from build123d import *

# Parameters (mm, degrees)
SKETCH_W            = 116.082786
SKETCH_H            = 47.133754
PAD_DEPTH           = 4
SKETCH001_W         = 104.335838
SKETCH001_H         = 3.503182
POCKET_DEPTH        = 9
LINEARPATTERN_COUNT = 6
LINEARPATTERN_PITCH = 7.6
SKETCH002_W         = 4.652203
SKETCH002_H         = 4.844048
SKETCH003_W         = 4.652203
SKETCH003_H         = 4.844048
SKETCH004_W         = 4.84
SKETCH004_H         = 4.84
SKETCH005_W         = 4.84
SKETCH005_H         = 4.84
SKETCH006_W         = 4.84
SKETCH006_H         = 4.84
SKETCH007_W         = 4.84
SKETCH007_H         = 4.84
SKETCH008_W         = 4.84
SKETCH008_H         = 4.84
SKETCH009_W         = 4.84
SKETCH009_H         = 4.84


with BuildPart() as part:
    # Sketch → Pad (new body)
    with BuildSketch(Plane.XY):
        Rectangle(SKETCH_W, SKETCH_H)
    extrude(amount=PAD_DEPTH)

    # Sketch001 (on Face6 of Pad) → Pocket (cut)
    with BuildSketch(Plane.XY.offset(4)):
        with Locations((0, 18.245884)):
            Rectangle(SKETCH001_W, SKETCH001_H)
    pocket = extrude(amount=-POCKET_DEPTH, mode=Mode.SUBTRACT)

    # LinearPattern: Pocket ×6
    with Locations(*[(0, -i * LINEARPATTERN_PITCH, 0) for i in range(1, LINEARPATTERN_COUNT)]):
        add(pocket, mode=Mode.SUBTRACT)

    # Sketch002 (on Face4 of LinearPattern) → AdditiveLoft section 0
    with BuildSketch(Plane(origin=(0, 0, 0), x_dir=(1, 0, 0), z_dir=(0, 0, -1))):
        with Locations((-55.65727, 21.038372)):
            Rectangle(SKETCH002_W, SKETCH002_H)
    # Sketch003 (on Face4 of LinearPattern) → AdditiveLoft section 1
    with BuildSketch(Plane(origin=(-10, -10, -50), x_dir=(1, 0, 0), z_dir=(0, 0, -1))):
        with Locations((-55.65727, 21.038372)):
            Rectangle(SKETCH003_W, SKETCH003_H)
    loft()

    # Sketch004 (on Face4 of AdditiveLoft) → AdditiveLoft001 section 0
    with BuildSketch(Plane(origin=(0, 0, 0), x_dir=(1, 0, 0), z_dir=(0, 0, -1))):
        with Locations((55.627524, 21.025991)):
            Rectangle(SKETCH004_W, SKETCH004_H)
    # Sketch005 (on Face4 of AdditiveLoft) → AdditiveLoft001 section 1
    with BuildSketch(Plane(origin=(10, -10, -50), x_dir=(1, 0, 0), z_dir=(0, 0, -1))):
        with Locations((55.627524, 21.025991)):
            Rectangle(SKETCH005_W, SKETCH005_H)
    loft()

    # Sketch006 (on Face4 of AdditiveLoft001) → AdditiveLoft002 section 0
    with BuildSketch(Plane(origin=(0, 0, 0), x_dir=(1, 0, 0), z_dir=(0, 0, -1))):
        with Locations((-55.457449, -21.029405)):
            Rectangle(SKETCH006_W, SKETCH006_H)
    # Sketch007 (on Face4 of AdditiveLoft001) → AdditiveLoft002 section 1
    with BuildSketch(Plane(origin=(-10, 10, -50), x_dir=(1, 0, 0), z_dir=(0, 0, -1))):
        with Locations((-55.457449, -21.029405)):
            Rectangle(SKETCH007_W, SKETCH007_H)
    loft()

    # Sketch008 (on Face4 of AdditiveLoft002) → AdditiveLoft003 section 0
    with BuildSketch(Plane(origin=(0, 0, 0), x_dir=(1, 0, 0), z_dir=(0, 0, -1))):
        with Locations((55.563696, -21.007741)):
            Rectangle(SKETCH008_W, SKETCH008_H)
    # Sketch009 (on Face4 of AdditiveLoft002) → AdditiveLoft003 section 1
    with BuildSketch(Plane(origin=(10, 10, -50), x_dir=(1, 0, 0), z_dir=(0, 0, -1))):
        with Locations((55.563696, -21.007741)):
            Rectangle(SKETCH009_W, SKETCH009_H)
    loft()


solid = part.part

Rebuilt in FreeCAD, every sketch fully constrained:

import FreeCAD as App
import Part
import Sketcher

V = App.Vector

doc = App.newDocument("Part")
body = doc.addObject("PartDesign::Body", "Body")

sketch1 = body.newObject("Sketcher::SketchObject", "Sketch")
sketch1.AttachmentSupport = (doc.getObject("XY_Plane"), [""])
sketch1.MapMode = "FlatFace"
sketch1.addGeometry([
    Part.LineSegment(V(-58, 24, 0), V(-58, -24, 0)),
    Part.LineSegment(V(-58, -24, 0), V(58, -24, 0)),
    Part.LineSegment(V(58, -24, 0), V(58, 24, 0)),
    Part.LineSegment(V(58, 24, 0), V(-58, 24, 0)),
], False)
sketch1.addConstraint([
    Sketcher.Constraint("Coincident", 0, 2, 1, 1),
    Sketcher.Constraint("Coincident", 1, 2, 2, 1),
    Sketcher.Constraint("Coincident", 2, 2, 3, 1),
    Sketcher.Constraint("Coincident", 3, 2, 0, 1),
    Sketcher.Constraint("Vertical", 0),
    Sketcher.Constraint("Horizontal", 1),
    Sketcher.Constraint("Vertical", 2),
    Sketcher.Constraint("Horizontal", 3),
    Sketcher.Constraint("Symmetric", 0, 2, 2, 2, -1, 1),
    Sketcher.Constraint("DistanceX", 1, 1, 1, 2, 116.082786),
    Sketcher.Constraint("DistanceY", 0, 2, 0, 1, 47.133754),
])
pad1 = body.newObject("PartDesign::Pad", "Pad")
pad1.Profile = sketch1
pad1.Length = 4

sketch2 = body.newObject("Sketcher::SketchObject", "Sketch001")
sketch2.AttachmentSupport = (doc.getObject("XY_Plane"), [""])
sketch2.MapMode = "FlatFace"
sketch2.AttachmentOffset = App.Placement(V(0, 0, 4), App.Rotation())
sketch2.addGeometry([
    Part.LineSegment(V(-52.2, 20, 0), V(-52.2, 16.5, 0)),
    Part.LineSegment(V(-52.2, 16.5, 0), V(52.2, 16.5, 0)),
    Part.LineSegment(V(52.2, 16.5, 0), V(52.2, 20, 0)),
    Part.LineSegment(V(52.2, 20, 0), V(-52.2, 20, 0)),
], False)
sketch2.addConstraint([
    Sketcher.Constraint("Coincident", 0, 2, 1, 1),
    Sketcher.Constraint("Coincident", 1, 2, 2, 1),
    Sketcher.Constraint("Coincident", 2, 2, 3, 1),
    Sketcher.Constraint("Coincident", 3, 2, 0, 1),
    Sketcher.Constraint("Vertical", 0),
    Sketcher.Constraint("Horizontal", 1),
    Sketcher.Constraint("Vertical", 2),
    Sketcher.Constraint("Horizontal", 3),
    Sketcher.Constraint("DistanceX", 1, 1, 1, 2, 104.335838),
    Sketcher.Constraint("DistanceY", 0, 2, 0, 1, 3.503182),
    Sketcher.Constraint("DistanceX", 0, 2, -1, 1, 52.167919),
    Sketcher.Constraint("DistanceY", -1, 1, 0, 2, 16.494293),
])
pocket1 = body.newObject("PartDesign::Pocket", "Pocket")
pocket1.Profile = sketch2
pocket1.Length = 9
doc.recompute()

linearpattern = body.newObject("PartDesign::LinearPattern", "LinearPattern")
linearpattern.Originals = [pocket1]
linearpattern.Direction = (doc.getObject("Y_Axis"), [""])
linearpattern.Mode = "offset"
linearpattern.Offset = 7.6
linearpattern.Occurrences = 6
linearpattern.Reversed = True
body.Tip = linearpattern

sketch3 = body.newObject("Sketcher::SketchObject", "Sketch002")
sketch3.AttachmentSupport = (doc.getObject("XY_Plane"), [""])
sketch3.MapMode = "FlatFace"
sketch3.addGeometry([
    Part.LineSegment(V(-58, -23.5, 0), V(-58, -18.6, 0)),
    Part.LineSegment(V(-58, -18.6, 0), V(-53.3, -18.6, 0)),
    Part.LineSegment(V(-53.3, -18.6, 0), V(-53.3, -23.5, 0)),
    Part.LineSegment(V(-53.3, -23.5, 0), V(-58, -23.5, 0)),
], False)
sketch3.addConstraint([
    Sketcher.Constraint("Coincident", 0, 2, 1, 1),
    Sketcher.Constraint("Coincident", 1, 2, 2, 1),
    Sketcher.Constraint("Coincident", 2, 2, 3, 1),
    Sketcher.Constraint("Coincident", 3, 2, 0, 1),
    Sketcher.Constraint("Vertical", 0),
    Sketcher.Constraint("Horizontal", 1),
    Sketcher.Constraint("Vertical", 2),
    Sketcher.Constraint("Horizontal", 3),
    Sketcher.Constraint("DistanceY", 0, 1, 0, 2, 4.844048),
    Sketcher.Constraint("DistanceX", 1, 1, 1, 2, 4.652203),
    Sketcher.Constraint("DistanceX", 0, 2, -1, 1, 57.983371),
    Sketcher.Constraint("DistanceY", 0, 2, -1, 1, 18.616348),
])

sketch4 = body.newObject("Sketcher::SketchObject", "Sketch003")
sketch4.AttachmentSupport = (doc.getObject("XY_Plane"), [""])
sketch4.MapMode = "FlatFace"
sketch4.AttachmentOffset = App.Placement(V(0, 0, -50), App.Rotation())
sketch4.addGeometry([
    Part.LineSegment(V(-68, -33.5, 0), V(-68, -28.6, 0)),
    Part.LineSegment(V(-68, -28.6, 0), V(-63.3, -28.6, 0)),
    Part.LineSegment(V(-63.3, -28.6, 0), V(-63.3, -33.5, 0)),
    Part.LineSegment(V(-63.3, -33.5, 0), V(-68, -33.5, 0)),
], False)
sketch4.addConstraint([
    Sketcher.Constraint("Coincident", 0, 2, 1, 1),
    Sketcher.Constraint("Coincident", 1, 2, 2, 1),
    Sketcher.Constraint("Coincident", 2, 2, 3, 1),
    Sketcher.Constraint("Coincident", 3, 2, 0, 1),
    Sketcher.Constraint("Vertical", 0),
    Sketcher.Constraint("Horizontal", 1),
    Sketcher.Constraint("Vertical", 2),
    Sketcher.Constraint("Horizontal", 3),
    Sketcher.Constraint("DistanceY", 0, 1, 0, 2, 4.844048),
    Sketcher.Constraint("DistanceX", 1, 1, 1, 2, 4.652203),
    Sketcher.Constraint("DistanceX", 0, 2, -1, 1, 67.983372),
    Sketcher.Constraint("DistanceY", 0, 2, -1, 1, 28.616348),
])

additiveloft = body.newObject("PartDesign::AdditiveLoft", "AdditiveLoft")
additiveloft.Profile = sketch3
additiveloft.Sections = [sketch4]

sketch5 = body.newObject("Sketcher::SketchObject", "Sketch004")
sketch5.AttachmentSupport = (doc.getObject("XY_Plane"), [""])
sketch5.MapMode = "FlatFace"
sketch5.addGeometry([
    Part.LineSegment(V(53.2, -23.4, 0), V(53.2, -18.6, 0)),
    Part.LineSegment(V(53.2, -18.6, 0), V(58, -18.6, 0)),
    Part.LineSegment(V(58, -18.6, 0), V(58, -23.4, 0)),
    Part.LineSegment(V(58, -23.4, 0), V(53.2, -23.4, 0)),
], False)
sketch5.addConstraint([
    Sketcher.Constraint("Coincident", 0, 2, 1, 1),
    Sketcher.Constraint("Coincident", 1, 2, 2, 1),
    Sketcher.Constraint("Coincident", 2, 2, 3, 1),
    Sketcher.Constraint("Coincident", 3, 2, 0, 1),
    Sketcher.Constraint("Vertical", 0),
    Sketcher.Constraint("Horizontal", 1),
    Sketcher.Constraint("Vertical", 2),
    Sketcher.Constraint("Horizontal", 3),
    Sketcher.Constraint("Equal", 3, 0),
    Sketcher.Constraint("DistanceX", 1, 1, 1, 2, 4.84),
    Sketcher.Constraint("DistanceY", 0, 2, -1, 1, 18.605991),
    Sketcher.Constraint("DistanceX", -1, 1, 0, 2, 53.207524),
])

sketch6 = body.newObject("Sketcher::SketchObject", "Sketch005")
sketch6.AttachmentSupport = (doc.getObject("XY_Plane"), [""])
sketch6.MapMode = "FlatFace"
sketch6.AttachmentOffset = App.Placement(V(0, 0, -50), App.Rotation())
sketch6.addGeometry([
    Part.LineSegment(V(63.2, -33.4, 0), V(63.2, -28.6, 0)),
    Part.LineSegment(V(63.2, -28.6, 0), V(68, -28.6, 0)),
    Part.LineSegment(V(68, -28.6, 0), V(68, -33.4, 0)),
    Part.LineSegment(V(68, -33.4, 0), V(63.2, -33.4, 0)),
], False)
sketch6.addConstraint([
    Sketcher.Constraint("Coincident", 0, 2, 1, 1),
    Sketcher.Constraint("Coincident", 1, 2, 2, 1),
    Sketcher.Constraint("Coincident", 2, 2, 3, 1),
    Sketcher.Constraint("Coincident", 3, 2, 0, 1),
    Sketcher.Constraint("Vertical", 0),
    Sketcher.Constraint("Horizontal", 1),
    Sketcher.Constraint("Vertical", 2),
    Sketcher.Constraint("Horizontal", 3),
    Sketcher.Constraint("Equal", 3, 0),
    Sketcher.Constraint("DistanceX", 1, 1, 1, 2, 4.84),
    Sketcher.Constraint("DistanceY", 0, 2, -1, 1, 28.605991),
    Sketcher.Constraint("DistanceX", -1, 1, 0, 2, 63.207524),
])

additiveloft2 = body.newObject("PartDesign::AdditiveLoft", "AdditiveLoft001")
additiveloft2.Profile = sketch5
additiveloft2.Sections = [sketch6]

sketch7 = body.newObject("Sketcher::SketchObject", "Sketch006")
sketch7.AttachmentSupport = (doc.getObject("XY_Plane"), [""])
sketch7.MapMode = "FlatFace"
sketch7.addGeometry([
    Part.LineSegment(V(-57.9, 18.6, 0), V(-57.9, 23.4, 0)),
    Part.LineSegment(V(-57.9, 23.4, 0), V(-53, 23.4, 0)),
    Part.LineSegment(V(-53, 23.4, 0), V(-53, 18.6, 0)),
    Part.LineSegment(V(-53, 18.6, 0), V(-57.9, 18.6, 0)),
], False)
sketch7.addConstraint([
    Sketcher.Constraint("Coincident", 0, 2, 1, 1),
    Sketcher.Constraint("Coincident", 1, 2, 2, 1),
    Sketcher.Constraint("Coincident", 2, 2, 3, 1),
    Sketcher.Constraint("Coincident", 3, 2, 0, 1),
    Sketcher.Constraint("Vertical", 0),
    Sketcher.Constraint("Horizontal", 1),
    Sketcher.Constraint("Vertical", 2),
    Sketcher.Constraint("Horizontal", 3),
    Sketcher.Constraint("Equal", 3, 0),
    Sketcher.Constraint("DistanceX", 1, 1, 1, 2, 4.84),
    Sketcher.Constraint("DistanceX", 0, 2, -1, 1, 57.877449),
    Sketcher.Constraint("DistanceY", -1, 1, 0, 2, 23.449405),
])

sketch8 = body.newObject("Sketcher::SketchObject", "Sketch007")
sketch8.AttachmentSupport = (doc.getObject("XY_Plane"), [""])
sketch8.MapMode = "FlatFace"
sketch8.AttachmentOffset = App.Placement(V(0, 0, -50), App.Rotation())
sketch8.addGeometry([
    Part.LineSegment(V(-67.9, 28.6, 0), V(-67.9, 33.4, 0)),
    Part.LineSegment(V(-67.9, 33.4, 0), V(-63, 33.4, 0)),
    Part.LineSegment(V(-63, 33.4, 0), V(-63, 28.6, 0)),
    Part.LineSegment(V(-63, 28.6, 0), V(-67.9, 28.6, 0)),
], False)
sketch8.addConstraint([
    Sketcher.Constraint("Coincident", 0, 2, 1, 1),
    Sketcher.Constraint("Coincident", 1, 2, 2, 1),
    Sketcher.Constraint("Coincident", 2, 2, 3, 1),
    Sketcher.Constraint("Coincident", 3, 2, 0, 1),
    Sketcher.Constraint("Vertical", 0),
    Sketcher.Constraint("Horizontal", 1),
    Sketcher.Constraint("Vertical", 2),
    Sketcher.Constraint("Horizontal", 3),
    Sketcher.Constraint("Equal", 3, 0),
    Sketcher.Constraint("DistanceX", 1, 1, 1, 2, 4.84),
    Sketcher.Constraint("DistanceX", 0, 2, -1, 1, 67.877449),
    Sketcher.Constraint("DistanceY", -1, 1, 0, 2, 33.449405),
])

additiveloft3 = body.newObject("PartDesign::AdditiveLoft", "AdditiveLoft002")
additiveloft3.Profile = sketch7
additiveloft3.Sections = [sketch8]

sketch9 = body.newObject("Sketcher::SketchObject", "Sketch008")
sketch9.AttachmentSupport = (doc.getObject("XY_Plane"), [""])
sketch9.MapMode = "FlatFace"
sketch9.addGeometry([
    Part.LineSegment(V(53.1, 18.6, 0), V(53.1, 23.4, 0)),
    Part.LineSegment(V(53.1, 23.4, 0), V(58, 23.4, 0)),
    Part.LineSegment(V(58, 23.4, 0), V(58, 18.6, 0)),
    Part.LineSegment(V(58, 18.6, 0), V(53.1, 18.6, 0)),
], False)
sketch9.addConstraint([
    Sketcher.Constraint("Coincident", 0, 2, 1, 1),
    Sketcher.Constraint("Coincident", 1, 2, 2, 1),
    Sketcher.Constraint("Coincident", 2, 2, 3, 1),
    Sketcher.Constraint("Coincident", 3, 2, 0, 1),
    Sketcher.Constraint("Vertical", 0),
    Sketcher.Constraint("Horizontal", 1),
    Sketcher.Constraint("Vertical", 2),
    Sketcher.Constraint("Horizontal", 3),
    Sketcher.Constraint("Equal", 3, 0),
    Sketcher.Constraint("DistanceX", 1, 1, 1, 2, 4.84),
    Sketcher.Constraint("DistanceY", -1, 1, 0, 2, 23.427741),
    Sketcher.Constraint("DistanceX", -1, 1, 0, 2, 53.143696),
])

sketch10 = body.newObject("Sketcher::SketchObject", "Sketch009")
sketch10.AttachmentSupport = (doc.getObject("XY_Plane"), [""])
sketch10.MapMode = "FlatFace"
sketch10.AttachmentOffset = App.Placement(V(0, 0, -50), App.Rotation())
sketch10.addGeometry([
    Part.LineSegment(V(63.1, 28.6, 0), V(63.1, 33.4, 0)),
    Part.LineSegment(V(63.1, 33.4, 0), V(68, 33.4, 0)),
    Part.LineSegment(V(68, 33.4, 0), V(68, 28.6, 0)),
    Part.LineSegment(V(68, 28.6, 0), V(63.1, 28.6, 0)),
], False)
sketch10.addConstraint([
    Sketcher.Constraint("Coincident", 0, 2, 1, 1),
    Sketcher.Constraint("Coincident", 1, 2, 2, 1),
    Sketcher.Constraint("Coincident", 2, 2, 3, 1),
    Sketcher.Constraint("Coincident", 3, 2, 0, 1),
    Sketcher.Constraint("Vertical", 0),
    Sketcher.Constraint("Horizontal", 1),
    Sketcher.Constraint("Vertical", 2),
    Sketcher.Constraint("Horizontal", 3),
    Sketcher.Constraint("Equal", 3, 0),
    Sketcher.Constraint("DistanceX", 1, 1, 1, 2, 4.84),
    Sketcher.Constraint("DistanceY", -1, 1, 0, 2, 33.427741),
    Sketcher.Constraint("DistanceX", -1, 1, 0, 2, 63.143696),
])

additiveloft4 = body.newObject("PartDesign::AdditiveLoft", "AdditiveLoft003")
additiveloft4.Profile = sketch9
additiveloft4.Sections = [sketch10]

doc.recompute()
